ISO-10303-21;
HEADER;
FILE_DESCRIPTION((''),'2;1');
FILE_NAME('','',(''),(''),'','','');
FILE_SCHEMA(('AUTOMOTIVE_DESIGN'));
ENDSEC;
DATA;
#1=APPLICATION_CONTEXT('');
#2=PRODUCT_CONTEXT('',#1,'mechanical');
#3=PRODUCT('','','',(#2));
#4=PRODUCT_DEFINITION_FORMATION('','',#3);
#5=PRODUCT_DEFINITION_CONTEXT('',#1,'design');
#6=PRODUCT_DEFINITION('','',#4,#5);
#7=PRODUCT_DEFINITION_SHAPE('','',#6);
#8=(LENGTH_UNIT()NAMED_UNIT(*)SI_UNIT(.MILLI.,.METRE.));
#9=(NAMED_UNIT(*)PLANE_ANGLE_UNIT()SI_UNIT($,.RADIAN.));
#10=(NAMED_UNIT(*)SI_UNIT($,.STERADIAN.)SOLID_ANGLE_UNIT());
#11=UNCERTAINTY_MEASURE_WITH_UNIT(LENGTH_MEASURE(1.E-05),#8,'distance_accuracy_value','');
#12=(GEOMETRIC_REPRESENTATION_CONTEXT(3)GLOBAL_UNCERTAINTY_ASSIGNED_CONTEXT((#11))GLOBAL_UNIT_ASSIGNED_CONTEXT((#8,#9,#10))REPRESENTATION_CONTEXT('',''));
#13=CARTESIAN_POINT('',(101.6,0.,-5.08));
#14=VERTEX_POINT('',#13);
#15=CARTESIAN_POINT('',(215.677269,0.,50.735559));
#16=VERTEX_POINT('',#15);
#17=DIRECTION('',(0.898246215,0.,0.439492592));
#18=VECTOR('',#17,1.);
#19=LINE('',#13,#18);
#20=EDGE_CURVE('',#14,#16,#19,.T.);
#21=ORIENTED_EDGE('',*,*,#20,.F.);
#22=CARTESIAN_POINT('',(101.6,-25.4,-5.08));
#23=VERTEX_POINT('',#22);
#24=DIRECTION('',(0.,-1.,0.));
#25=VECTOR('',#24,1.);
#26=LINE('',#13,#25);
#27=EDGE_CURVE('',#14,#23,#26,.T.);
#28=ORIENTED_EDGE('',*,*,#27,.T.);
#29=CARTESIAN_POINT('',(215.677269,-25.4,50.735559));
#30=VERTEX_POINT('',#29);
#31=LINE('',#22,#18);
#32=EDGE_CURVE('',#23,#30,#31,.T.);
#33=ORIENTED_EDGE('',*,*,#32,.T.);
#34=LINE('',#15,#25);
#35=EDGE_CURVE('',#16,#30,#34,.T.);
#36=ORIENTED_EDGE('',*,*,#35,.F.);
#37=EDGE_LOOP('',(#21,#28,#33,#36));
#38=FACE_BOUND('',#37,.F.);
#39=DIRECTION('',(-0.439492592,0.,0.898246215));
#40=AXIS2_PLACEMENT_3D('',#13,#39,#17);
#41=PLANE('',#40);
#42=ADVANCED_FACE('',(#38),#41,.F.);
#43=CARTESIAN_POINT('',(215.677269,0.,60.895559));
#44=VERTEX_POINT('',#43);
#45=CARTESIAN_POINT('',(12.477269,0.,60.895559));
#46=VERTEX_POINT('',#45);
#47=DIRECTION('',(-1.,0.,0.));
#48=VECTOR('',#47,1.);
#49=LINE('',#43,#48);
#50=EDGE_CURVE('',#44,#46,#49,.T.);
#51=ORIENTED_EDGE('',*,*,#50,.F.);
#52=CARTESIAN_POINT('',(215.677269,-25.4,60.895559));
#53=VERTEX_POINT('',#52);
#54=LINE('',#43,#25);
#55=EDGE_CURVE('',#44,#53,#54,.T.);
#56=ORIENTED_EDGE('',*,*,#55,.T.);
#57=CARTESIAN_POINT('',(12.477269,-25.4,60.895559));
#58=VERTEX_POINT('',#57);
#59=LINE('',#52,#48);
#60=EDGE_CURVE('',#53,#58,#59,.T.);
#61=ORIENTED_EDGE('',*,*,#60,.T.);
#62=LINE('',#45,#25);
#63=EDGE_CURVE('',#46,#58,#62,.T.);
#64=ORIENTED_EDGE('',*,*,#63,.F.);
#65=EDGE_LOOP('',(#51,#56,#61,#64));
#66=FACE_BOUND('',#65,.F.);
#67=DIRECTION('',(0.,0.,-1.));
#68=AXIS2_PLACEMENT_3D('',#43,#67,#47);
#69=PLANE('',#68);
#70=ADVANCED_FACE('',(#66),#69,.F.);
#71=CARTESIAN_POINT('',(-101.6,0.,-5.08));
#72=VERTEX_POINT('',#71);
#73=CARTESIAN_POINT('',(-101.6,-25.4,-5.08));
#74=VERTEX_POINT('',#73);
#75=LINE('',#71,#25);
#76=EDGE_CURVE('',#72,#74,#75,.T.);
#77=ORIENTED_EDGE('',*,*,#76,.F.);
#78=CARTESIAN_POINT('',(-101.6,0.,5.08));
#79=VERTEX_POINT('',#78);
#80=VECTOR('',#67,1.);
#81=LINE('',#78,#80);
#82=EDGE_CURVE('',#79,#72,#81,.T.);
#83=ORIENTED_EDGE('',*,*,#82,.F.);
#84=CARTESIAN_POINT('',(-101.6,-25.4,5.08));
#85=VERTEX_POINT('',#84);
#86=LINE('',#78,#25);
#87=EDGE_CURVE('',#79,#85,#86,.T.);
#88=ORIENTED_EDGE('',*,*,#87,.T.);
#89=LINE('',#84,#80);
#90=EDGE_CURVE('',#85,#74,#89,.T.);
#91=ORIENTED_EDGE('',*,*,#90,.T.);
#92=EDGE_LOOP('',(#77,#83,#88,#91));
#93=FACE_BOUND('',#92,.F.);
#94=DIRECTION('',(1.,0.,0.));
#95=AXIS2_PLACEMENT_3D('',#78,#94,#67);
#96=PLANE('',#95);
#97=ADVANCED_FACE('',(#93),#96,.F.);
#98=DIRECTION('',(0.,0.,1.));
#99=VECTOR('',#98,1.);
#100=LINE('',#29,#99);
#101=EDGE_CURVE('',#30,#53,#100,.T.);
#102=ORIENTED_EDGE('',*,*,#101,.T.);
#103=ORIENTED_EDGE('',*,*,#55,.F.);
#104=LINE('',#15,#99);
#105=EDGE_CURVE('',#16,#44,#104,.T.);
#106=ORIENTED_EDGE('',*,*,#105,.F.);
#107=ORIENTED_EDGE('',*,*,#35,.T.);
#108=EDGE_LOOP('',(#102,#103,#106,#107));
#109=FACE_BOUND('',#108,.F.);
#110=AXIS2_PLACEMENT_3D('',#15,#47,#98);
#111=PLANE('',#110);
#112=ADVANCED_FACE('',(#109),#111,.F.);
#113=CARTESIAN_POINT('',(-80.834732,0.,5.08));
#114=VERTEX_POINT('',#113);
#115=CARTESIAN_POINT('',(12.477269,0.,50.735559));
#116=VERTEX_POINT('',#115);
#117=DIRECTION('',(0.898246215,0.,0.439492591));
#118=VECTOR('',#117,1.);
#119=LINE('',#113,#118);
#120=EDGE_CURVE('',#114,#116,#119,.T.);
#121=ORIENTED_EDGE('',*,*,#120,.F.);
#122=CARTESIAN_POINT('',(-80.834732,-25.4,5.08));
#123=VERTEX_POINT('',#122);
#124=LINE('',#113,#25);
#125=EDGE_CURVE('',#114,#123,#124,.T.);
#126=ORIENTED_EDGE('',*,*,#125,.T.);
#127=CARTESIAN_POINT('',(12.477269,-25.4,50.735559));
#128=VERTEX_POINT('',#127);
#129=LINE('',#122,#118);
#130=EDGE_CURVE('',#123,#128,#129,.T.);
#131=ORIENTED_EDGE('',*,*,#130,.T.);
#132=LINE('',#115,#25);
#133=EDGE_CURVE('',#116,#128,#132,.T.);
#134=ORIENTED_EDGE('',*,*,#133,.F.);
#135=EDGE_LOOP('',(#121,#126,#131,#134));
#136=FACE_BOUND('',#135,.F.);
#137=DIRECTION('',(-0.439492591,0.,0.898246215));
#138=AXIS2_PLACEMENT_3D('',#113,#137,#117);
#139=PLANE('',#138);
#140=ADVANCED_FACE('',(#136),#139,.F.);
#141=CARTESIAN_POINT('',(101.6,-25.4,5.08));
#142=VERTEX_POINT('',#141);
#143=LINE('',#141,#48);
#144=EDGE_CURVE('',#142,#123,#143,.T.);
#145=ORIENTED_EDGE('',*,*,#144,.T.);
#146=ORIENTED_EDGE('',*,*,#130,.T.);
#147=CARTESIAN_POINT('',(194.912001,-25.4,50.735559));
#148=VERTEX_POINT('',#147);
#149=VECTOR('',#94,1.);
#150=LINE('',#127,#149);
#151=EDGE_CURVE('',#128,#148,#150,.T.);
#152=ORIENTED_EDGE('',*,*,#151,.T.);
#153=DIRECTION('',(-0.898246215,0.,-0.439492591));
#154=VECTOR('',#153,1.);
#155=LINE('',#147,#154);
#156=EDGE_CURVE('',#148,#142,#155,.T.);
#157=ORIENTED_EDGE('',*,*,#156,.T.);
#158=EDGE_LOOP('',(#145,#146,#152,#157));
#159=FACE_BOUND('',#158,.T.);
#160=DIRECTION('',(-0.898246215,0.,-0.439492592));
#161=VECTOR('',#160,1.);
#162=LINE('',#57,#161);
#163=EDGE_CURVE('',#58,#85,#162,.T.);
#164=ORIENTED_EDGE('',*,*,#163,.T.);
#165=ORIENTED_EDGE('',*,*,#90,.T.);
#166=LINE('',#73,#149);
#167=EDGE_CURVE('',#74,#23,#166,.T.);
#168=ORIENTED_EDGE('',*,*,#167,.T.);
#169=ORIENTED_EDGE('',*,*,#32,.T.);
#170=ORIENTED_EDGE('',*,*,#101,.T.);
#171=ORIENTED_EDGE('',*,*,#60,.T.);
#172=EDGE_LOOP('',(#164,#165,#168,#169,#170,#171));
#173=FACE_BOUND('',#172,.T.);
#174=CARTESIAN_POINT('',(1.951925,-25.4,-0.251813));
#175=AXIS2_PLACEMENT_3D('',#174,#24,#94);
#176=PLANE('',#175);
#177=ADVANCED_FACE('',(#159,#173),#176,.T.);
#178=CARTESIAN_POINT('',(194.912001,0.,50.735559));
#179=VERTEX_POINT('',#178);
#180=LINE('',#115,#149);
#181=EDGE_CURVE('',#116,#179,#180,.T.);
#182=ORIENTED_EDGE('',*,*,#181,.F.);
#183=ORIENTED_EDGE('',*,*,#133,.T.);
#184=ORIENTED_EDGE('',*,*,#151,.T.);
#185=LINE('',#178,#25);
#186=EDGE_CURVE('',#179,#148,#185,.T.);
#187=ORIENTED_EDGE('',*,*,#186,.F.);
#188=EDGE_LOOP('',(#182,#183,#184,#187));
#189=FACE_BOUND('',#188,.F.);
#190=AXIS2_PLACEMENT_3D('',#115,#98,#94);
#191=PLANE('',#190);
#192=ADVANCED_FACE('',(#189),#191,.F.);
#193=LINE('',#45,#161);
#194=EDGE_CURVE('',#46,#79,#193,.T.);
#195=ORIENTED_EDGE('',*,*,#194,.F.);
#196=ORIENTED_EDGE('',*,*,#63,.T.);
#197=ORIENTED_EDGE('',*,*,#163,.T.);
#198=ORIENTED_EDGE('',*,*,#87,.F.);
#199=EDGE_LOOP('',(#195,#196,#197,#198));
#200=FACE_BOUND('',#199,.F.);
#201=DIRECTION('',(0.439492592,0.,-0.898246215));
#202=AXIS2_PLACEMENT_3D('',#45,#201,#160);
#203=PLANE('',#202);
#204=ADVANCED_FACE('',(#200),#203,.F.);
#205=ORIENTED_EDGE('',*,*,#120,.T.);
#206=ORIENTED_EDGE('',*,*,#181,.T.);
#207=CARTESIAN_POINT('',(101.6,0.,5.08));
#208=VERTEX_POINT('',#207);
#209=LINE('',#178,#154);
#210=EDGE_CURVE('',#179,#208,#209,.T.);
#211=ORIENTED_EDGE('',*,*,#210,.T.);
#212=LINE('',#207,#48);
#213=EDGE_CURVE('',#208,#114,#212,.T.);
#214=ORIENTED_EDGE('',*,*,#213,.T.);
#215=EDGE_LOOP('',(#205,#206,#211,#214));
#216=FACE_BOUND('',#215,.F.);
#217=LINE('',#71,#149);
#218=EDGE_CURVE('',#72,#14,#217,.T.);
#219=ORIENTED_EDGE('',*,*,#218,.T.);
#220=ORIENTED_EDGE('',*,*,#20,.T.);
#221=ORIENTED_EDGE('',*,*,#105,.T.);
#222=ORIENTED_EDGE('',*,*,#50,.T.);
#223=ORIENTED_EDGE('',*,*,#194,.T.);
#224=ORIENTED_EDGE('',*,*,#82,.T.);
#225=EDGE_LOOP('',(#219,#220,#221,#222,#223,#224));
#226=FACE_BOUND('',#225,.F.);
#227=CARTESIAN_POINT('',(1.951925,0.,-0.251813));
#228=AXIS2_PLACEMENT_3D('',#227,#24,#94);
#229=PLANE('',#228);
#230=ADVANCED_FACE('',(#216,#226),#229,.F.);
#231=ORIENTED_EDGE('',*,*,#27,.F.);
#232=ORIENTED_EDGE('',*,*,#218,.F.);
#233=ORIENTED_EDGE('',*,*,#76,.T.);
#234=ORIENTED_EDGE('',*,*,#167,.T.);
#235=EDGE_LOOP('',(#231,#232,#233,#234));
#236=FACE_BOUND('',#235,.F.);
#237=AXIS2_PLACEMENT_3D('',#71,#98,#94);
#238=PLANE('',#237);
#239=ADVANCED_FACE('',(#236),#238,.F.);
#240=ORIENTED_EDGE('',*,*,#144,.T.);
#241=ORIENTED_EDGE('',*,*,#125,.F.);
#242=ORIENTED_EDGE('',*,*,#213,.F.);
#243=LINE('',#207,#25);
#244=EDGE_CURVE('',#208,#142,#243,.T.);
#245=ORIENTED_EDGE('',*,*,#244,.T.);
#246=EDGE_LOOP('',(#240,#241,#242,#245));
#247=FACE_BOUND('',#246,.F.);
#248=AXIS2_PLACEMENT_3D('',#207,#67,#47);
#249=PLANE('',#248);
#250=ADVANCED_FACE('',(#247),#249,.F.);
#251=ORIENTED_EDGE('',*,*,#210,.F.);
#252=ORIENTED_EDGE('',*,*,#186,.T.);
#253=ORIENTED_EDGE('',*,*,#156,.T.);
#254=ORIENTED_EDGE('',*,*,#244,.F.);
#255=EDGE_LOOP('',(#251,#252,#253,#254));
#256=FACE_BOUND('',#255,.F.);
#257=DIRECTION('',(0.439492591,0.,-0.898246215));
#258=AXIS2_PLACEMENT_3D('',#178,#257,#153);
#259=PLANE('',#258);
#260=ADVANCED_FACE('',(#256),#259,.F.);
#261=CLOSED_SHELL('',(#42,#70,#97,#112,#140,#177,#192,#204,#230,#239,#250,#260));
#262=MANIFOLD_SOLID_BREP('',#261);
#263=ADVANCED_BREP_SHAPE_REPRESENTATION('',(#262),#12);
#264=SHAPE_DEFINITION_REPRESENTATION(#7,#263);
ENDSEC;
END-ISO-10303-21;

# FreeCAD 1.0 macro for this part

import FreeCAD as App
import Part
import Sketcher
Q = App.Units.Quantity


def add_polygon(sketch, points):
    """Adds a closed chain of lines whose ends are joined by coincident constraints."""
    first, n = sketch.GeometryCount, len(points)
    for a, b in zip(points, points[1:] + points[:1]):
        sketch.addGeometry(Part.LineSegment(App.Vector(*a, 0), App.Vector(*b, 0)), False)
    for i in range(n):
        sketch.addConstraint(Sketcher.Constraint("Coincident", first + i, 2, first + (i + 1) % n, 1))

doc = App.newDocument("Part")
params = doc.addObject("Spreadsheet::Sheet", "Params")
for row, (alias, value) in enumerate([
    ("sketch1_width", "8 in"),
    ("sketch1_length", "5 in"),
    ("sketch1_height", "0.4 in"),
    ("pad1_length", "1 in"),
], start=1):
    params.set(f"A{row}", alias)
    params.set(f"B{row}", "=" + value)
    params.setAlias(f"B{row}", alias)

body = doc.addObject("PartDesign::Body", "Body")

# Sketch on XZ plane
sketch1 = body.newObject("Sketcher::SketchObject", "Sketch")
sketch1.AttachmentSupport = (doc.getObject("XZ_Plane"), [""])
sketch1.MapMode = "FlatFace"
add_polygon(sketch1, [(-102, -5), (102, -5), (216, 51), (216, 61), (12, 61), (-102, 5)])  # lines 0-5
add_polygon(sketch1, [(195, 51), (102, 5), (-81, 5), (12, 51)])  # lines 6-9
sketch1.addConstraint([
    Sketcher.Constraint("Horizontal", 0),
    Sketcher.Constraint("Vertical", 2),
    Sketcher.Constraint("Horizontal", 3),
    Sketcher.Constraint("Vertical", 5),
    Sketcher.Constraint("Horizontal", 7),
    Sketcher.Constraint("Horizontal", 9),
    Sketcher.Constraint("Symmetric", 0, 2, 4, 2, -1, 1),
    Sketcher.Constraint("Symmetric", 5, 2, 6, 2, -1, 1),
    Sketcher.Constraint("Parallel", 1, 4),
    Sketcher.Constraint("Parallel", 4, 6),
    Sketcher.Constraint("Parallel", 6, 8),
    Sketcher.Constraint("Horizontal", 1, 2, 8, 2),
    Sketcher.Constraint("Vertical", 3, 2, 8, 2),
    Sketcher.Constraint("Equal", 0, 3),
    Sketcher.Constraint("DistanceX", 0, 1, 0, 2, Q("8 in")),
    Sketcher.Constraint("Distance", 1, Q("5 in")),
    Sketcher.Constraint("DistanceY", 2, 1, 2, 2, Q("0.4 in")),
    Sketcher.Constraint("DistanceX", 7, 2, 7, 1, 182.434732),
])
sketch1.setExpression("Constraints[24]", "Params.sketch1_width")
sketch1.setExpression("Constraints[25]", "Params.sketch1_length")
sketch1.setExpression("Constraints[26]", "Params.sketch1_height")
pad1 = body.newObject("PartDesign::Pad", "Pad")
pad1.Profile = sketch1
pad1.setExpression("Length", "Params.pad1_length")

doc.recompute()
